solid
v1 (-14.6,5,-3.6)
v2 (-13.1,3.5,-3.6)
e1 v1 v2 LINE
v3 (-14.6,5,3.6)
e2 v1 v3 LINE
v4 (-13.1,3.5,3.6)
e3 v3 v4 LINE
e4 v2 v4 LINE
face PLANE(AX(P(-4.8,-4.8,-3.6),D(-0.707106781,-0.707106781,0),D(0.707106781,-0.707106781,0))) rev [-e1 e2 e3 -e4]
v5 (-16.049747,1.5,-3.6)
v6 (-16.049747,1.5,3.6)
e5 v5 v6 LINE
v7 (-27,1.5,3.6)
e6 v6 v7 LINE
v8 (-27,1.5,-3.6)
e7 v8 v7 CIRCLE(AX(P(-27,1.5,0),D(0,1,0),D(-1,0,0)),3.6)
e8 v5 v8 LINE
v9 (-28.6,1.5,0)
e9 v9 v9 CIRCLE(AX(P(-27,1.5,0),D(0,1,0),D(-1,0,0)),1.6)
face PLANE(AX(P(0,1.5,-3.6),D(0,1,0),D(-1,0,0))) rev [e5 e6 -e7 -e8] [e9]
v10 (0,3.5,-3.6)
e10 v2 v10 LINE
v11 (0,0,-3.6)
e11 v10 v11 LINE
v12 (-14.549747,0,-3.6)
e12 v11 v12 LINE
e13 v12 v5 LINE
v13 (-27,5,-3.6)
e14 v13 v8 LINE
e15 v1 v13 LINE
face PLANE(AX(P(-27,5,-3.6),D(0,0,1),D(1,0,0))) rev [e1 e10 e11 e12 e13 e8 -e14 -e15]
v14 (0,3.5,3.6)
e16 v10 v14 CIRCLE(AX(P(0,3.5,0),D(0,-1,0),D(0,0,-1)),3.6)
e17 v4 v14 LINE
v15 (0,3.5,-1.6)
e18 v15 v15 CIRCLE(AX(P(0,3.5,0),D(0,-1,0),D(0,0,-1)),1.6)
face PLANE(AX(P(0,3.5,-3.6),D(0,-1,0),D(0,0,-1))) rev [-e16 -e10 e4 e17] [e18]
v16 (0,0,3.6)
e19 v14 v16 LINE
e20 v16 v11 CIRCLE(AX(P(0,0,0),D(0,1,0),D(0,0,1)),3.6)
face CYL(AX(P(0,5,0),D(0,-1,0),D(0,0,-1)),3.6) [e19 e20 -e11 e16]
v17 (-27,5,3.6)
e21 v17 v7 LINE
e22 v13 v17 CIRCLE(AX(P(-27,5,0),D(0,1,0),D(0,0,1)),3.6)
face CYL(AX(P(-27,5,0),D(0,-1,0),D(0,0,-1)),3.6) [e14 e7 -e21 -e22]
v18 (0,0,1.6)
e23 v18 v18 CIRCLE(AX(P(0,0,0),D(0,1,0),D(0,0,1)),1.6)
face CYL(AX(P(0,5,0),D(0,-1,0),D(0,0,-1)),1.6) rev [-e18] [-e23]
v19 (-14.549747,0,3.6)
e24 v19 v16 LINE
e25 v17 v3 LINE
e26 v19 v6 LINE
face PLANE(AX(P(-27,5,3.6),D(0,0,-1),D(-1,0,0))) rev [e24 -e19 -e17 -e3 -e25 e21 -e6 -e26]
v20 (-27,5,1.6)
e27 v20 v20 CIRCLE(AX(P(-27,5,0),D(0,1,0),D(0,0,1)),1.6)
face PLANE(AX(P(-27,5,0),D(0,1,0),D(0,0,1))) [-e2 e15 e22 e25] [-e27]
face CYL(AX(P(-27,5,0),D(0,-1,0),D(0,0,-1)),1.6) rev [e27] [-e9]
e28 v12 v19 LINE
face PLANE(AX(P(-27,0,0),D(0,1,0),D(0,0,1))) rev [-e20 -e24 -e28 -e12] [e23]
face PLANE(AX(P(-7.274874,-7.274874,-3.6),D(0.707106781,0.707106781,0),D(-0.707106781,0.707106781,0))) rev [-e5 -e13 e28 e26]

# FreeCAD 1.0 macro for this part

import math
import FreeCAD as App
import Part
import Sketcher

V = App.Vector
Q = App.Units.Quantity


def add_polygon(sketch, points):
    """Adds a closed chain of lines whose ends are joined by coincident constraints."""
    first, n = sketch.GeometryCount, len(points)
    for a, b in zip(points, points[1:] + points[:1]):
        sketch.addGeometry(Part.LineSegment(App.Vector(*a, 0), App.Vector(*b, 0)), False)
    for i in range(n):
        sketch.addConstraint(Sketcher.Constraint("Coincident", first + i, 2, first + (i + 1) % n, 1))

doc = App.newDocument("Part")
body = doc.addObject("PartDesign::Body", "Body")

sketch1 = body.newObject("Sketcher::SketchObject", "Sketch")
sketch1.AttachmentSupport = (doc.getObject("XZ_Plane"), [""])
sketch1.MapMode = "FlatFace"
sketch1.addGeometry([
    Part.LineSegment(V(0, -3.6, 0), V(-27, -3.6, 0)),
    Part.ArcOfCircle(Part.Circle(V(-27, 0, 0), V(0, 0, 1), 3.6), math.radians(90), math.radians(270)),
    Part.LineSegment(V(-27, 3.6, 0), V(0, 3.6, 0)),
    Part.ArcOfCircle(Part.Circle(V(0, 0, 0), V(0, 0, 1), 3.6), math.radians(-90), math.radians(90)),
    Part.Circle(V(0, 0, 0), V(0, 0, 1), 1.6),
    Part.Circle(V(-27, 0, 0), V(0, 0, 1), 1.6),
], False)
sketch1.addConstraint([
    Sketcher.Constraint("Tangent", 0, 2, 1, 2),
    Sketcher.Constraint("Tangent", 1, 1, 2, 1),
    Sketcher.Constraint("Tangent", 2, 2, 3, 2),
    Sketcher.Constraint("Tangent", 3, 1, 0, 1),
    Sketcher.Constraint("Horizontal", 0),
    Sketcher.Constraint("Horizontal", 2),
    Sketcher.Constraint("Coincident", 3, 3, -1, 1),
    Sketcher.Constraint("Coincident", 4, 3, -1, 1),
    Sketcher.Constraint("Coincident", 5, 3, 1, 3),
    Sketcher.Constraint("Equal", 4, 5),
    Sketcher.Constraint("Diameter", 4, Q("3.2 mm")),
    Sketcher.Constraint("Radius", 1, Q("3.6 mm")),
    Sketcher.Constraint("DistanceX", 0, 2, 0, 1, Q("27 mm")),
])
pad1 = body.newObject("PartDesign::Pad", "Pad")
pad1.Profile = sketch1
pad1.Length = 5
pad1.Reversed = True

sketch2 = body.newObject("Sketcher::SketchObject", "Sketch001")
sketch2.AttachmentSupport = (doc.getObject("XY_Plane"), [""])
sketch2.MapMode = "FlatFace"
sketch2.AttachmentOffset = App.Placement(V(0, 0, 3.6), App.Rotation())
add_polygon(sketch2, [(-16, 1.5), (-30.6, 1.5), (-30.6, 0), (-14.5, 0)])
add_polygon(sketch2, [(-14.6, 5), (-13.1, 3.5), (3.6, 3.5), (3.6, 5)])
sketch2.addConstraint([
    Sketcher.Constraint("Horizontal", 0),
    Sketcher.Constraint("Vertical", 1),
    Sketcher.Constraint("Horizontal", 2),
    Sketcher.Constraint("Horizontal", 5),
    Sketcher.Constraint("Vertical", 6),
    Sketcher.Constraint("Horizontal", 7),
    Sketcher.Constraint("PointOnObject", 1, 2, -1),
    Sketcher.Constraint("Parallel", 3, 4),
    Sketcher.Constraint("Equal", 1, 6),
    Sketcher.Constraint("Angle", 3, Q("135 deg")),
    Sketcher.Constraint("DistanceX", 5, 1, 5, 2, Q("16.7 mm")),
    Sketcher.Constraint("DistanceX", 7, 2, 7, 1, Q("18.2 mm")),
    Sketcher.Constraint("DistanceY", -1, 1, 6, 2, Q("5 mm")),
    Sketcher.Constraint("DistanceX", 0, 2, 7, 2, Q("16 mm")),
    Sketcher.Constraint("DistanceX", 0, 2, -1, 1, Q("30.6 mm")),
    Sketcher.Constraint("DistanceX", 0, 2, 0, 1, Q("14.550253 mm")),
])
pocket1 = body.newObject("PartDesign::Pocket", "Pocket")
pocket1.Profile = sketch2
pocket1.Type = "ThroughAll"

doc.recompute()
